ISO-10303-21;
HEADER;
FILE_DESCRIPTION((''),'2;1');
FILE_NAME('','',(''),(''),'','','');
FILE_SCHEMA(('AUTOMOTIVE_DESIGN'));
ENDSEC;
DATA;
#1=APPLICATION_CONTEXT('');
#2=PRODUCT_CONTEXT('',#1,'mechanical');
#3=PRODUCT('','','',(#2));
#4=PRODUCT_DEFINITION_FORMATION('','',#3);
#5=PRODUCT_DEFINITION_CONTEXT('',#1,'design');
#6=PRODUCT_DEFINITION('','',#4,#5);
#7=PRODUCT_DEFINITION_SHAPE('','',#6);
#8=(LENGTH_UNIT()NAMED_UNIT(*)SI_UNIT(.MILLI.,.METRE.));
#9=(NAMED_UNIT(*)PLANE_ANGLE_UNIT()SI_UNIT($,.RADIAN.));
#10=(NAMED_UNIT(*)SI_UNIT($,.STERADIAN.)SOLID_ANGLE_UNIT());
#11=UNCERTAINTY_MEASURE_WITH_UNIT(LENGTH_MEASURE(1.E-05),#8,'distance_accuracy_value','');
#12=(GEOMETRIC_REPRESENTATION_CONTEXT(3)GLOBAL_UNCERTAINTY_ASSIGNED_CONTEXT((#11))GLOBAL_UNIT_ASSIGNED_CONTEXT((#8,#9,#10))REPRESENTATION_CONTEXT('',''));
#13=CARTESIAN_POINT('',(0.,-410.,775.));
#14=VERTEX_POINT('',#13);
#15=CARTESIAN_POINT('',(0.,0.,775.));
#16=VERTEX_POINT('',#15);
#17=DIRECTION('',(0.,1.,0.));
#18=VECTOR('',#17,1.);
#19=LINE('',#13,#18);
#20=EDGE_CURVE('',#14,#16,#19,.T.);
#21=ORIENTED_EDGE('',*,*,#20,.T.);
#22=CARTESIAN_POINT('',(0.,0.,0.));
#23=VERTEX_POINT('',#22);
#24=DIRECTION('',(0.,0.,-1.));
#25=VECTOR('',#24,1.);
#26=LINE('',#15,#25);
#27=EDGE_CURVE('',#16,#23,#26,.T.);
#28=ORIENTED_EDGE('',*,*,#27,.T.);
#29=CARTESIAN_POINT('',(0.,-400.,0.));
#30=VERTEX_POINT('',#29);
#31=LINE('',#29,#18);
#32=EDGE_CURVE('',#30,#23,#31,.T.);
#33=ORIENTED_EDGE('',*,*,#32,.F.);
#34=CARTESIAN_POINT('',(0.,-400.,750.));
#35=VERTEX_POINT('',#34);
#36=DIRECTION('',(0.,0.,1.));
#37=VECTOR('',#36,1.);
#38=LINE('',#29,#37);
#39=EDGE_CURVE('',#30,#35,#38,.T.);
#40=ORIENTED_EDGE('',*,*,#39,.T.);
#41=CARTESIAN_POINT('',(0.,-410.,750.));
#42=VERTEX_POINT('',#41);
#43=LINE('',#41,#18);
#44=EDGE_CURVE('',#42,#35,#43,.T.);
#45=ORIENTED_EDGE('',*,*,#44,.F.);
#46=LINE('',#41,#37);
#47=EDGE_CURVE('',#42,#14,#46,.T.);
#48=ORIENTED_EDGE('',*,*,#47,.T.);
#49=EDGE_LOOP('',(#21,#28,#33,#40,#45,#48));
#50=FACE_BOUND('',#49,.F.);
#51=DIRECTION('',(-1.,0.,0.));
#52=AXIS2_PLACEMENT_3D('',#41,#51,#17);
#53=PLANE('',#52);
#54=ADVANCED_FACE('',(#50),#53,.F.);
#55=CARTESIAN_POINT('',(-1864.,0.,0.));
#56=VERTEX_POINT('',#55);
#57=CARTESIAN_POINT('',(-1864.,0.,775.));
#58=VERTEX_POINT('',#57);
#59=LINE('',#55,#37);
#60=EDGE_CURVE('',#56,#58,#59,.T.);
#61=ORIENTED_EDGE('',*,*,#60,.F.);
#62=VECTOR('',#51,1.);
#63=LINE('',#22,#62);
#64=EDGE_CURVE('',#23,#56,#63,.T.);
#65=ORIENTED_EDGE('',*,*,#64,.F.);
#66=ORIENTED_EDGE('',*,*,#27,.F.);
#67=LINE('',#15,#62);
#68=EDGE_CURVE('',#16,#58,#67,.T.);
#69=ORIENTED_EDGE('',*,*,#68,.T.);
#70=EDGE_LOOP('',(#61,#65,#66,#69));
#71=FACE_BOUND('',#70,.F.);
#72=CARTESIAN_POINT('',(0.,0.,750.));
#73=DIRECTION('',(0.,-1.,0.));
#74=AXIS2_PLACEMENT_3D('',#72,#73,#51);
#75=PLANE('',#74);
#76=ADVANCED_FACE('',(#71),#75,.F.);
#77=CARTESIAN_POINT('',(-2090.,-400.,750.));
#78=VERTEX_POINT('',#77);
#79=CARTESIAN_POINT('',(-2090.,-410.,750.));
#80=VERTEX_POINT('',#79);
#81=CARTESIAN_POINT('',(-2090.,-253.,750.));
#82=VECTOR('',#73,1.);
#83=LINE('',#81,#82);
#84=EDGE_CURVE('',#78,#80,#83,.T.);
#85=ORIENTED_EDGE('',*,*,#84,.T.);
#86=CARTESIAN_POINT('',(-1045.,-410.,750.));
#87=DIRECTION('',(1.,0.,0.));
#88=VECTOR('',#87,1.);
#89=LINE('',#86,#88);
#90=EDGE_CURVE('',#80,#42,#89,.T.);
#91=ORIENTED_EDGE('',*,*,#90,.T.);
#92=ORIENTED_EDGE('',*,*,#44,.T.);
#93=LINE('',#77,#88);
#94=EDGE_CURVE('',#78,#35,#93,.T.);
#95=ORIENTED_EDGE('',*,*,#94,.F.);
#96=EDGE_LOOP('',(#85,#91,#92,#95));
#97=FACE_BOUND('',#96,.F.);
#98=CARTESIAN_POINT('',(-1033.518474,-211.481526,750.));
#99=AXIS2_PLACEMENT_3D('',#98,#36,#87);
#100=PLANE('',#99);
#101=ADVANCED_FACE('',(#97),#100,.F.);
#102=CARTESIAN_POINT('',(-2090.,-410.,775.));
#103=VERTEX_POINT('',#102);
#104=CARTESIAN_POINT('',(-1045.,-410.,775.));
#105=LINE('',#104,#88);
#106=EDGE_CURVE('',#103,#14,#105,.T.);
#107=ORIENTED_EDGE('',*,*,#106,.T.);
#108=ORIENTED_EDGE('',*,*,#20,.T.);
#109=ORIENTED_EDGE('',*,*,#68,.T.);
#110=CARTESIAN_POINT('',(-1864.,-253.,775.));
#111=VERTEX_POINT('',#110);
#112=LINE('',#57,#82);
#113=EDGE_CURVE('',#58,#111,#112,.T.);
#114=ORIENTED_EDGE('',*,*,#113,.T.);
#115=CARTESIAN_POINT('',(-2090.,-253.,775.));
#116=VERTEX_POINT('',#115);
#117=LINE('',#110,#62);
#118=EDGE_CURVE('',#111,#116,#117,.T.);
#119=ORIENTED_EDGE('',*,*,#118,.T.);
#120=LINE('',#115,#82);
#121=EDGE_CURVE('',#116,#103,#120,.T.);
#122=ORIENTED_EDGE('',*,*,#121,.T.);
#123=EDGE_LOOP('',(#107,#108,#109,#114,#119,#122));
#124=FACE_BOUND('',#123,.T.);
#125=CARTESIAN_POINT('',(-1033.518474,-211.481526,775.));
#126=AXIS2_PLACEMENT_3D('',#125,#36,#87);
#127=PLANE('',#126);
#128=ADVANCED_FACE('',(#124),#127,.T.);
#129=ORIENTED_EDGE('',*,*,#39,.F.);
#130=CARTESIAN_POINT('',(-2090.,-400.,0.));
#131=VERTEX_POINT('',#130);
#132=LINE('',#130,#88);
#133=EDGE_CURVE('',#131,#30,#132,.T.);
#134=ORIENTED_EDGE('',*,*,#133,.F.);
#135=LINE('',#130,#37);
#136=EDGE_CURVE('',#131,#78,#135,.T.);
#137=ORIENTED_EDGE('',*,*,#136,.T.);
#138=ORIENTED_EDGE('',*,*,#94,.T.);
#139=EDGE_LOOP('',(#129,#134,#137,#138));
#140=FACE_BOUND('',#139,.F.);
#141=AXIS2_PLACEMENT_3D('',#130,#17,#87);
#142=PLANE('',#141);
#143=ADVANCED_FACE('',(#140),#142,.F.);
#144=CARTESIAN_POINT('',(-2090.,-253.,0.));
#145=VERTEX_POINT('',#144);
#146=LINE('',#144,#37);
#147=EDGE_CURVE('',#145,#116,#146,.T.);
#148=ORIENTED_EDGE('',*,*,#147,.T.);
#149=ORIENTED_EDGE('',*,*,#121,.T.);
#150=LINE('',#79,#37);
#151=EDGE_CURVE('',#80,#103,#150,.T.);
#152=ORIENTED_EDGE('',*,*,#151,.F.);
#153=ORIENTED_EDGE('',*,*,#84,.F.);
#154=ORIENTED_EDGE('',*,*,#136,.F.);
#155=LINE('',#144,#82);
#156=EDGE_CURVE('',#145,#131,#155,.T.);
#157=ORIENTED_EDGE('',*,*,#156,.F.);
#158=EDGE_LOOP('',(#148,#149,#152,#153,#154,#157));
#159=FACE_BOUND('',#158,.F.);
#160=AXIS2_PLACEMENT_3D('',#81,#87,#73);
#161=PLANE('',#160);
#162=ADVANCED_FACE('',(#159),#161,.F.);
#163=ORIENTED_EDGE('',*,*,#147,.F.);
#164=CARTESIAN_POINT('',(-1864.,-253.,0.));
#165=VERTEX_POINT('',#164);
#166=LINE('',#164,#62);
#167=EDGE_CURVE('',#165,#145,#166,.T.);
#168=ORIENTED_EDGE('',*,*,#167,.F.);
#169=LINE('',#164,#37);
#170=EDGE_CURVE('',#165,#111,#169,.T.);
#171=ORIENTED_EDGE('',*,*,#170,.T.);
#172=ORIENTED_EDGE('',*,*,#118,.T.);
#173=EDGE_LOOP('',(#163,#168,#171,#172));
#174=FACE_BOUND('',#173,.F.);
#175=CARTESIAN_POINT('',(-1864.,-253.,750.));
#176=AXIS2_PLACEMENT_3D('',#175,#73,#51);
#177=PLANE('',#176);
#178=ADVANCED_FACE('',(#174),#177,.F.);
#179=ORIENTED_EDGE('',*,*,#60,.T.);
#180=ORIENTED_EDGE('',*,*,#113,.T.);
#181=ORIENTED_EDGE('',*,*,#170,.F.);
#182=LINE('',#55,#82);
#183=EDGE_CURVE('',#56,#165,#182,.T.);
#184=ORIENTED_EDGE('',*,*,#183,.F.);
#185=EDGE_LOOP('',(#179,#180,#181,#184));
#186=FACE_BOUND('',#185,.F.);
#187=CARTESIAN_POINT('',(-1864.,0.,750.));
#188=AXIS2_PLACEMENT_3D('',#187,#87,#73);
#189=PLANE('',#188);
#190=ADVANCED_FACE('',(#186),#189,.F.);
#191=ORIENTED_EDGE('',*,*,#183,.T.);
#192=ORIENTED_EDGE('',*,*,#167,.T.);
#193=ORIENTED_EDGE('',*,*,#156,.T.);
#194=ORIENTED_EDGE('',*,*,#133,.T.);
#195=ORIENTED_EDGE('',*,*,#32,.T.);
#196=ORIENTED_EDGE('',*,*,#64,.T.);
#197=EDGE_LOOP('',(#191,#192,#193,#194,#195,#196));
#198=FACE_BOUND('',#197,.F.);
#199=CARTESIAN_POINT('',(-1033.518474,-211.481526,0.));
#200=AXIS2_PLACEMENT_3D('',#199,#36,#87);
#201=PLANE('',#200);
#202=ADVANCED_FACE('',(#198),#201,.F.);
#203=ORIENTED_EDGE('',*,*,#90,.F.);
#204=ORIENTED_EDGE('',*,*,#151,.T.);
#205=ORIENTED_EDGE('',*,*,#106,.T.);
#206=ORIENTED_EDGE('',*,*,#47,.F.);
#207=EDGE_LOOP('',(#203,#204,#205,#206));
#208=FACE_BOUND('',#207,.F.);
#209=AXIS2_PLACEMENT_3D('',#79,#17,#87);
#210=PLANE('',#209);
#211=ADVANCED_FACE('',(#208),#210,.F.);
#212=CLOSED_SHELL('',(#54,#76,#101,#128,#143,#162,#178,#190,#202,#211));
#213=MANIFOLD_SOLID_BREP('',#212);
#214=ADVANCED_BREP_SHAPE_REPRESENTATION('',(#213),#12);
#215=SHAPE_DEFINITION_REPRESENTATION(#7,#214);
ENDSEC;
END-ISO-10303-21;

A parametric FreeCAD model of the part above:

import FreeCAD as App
import Part
import Sketcher


def add_polygon(sketch, points):
    """Adds a closed chain of lines whose ends are joined by coincident constraints."""
    first, n = sketch.GeometryCount, len(points)
    for a, b in zip(points, points[1:] + points[:1]):
        sketch.addGeometry(Part.LineSegment(App.Vector(*a, 0), App.Vector(*b, 0)), False)
    for i in range(n):
        sketch.addConstraint(Sketcher.Constraint("Coincident", first + i, 2, first + (i + 1) % n, 1))

doc = App.newDocument("Part")
body = doc.addObject("PartDesign::Body", "Body")

sketch1 = doc.addObject("Sketcher::SketchObject", "Sketch")
body.addObject(sketch1)
sketch1.AttachmentSupport = (doc.XY_Plane, [""])
sketch1.MapMode = "FlatFace"
add_polygon(sketch1, [(0, -400), (0, 0), (-1864, 0), (-1864, -253), (-2090, -253), (-2090, -400)])
sketch1.addConstraint([
    Sketcher.Constraint("Vertical", 0),
    Sketcher.Constraint("Horizontal", 1),
    Sketcher.Constraint("Vertical", 2),
    Sketcher.Constraint("Horizontal", 3),
    Sketcher.Constraint("Vertical", 4),
    Sketcher.Constraint("Horizontal", 5),
    Sketcher.Constraint("Coincident", 0, 2, -1, 1),
    Sketcher.Constraint("DistanceX", 1, 2, 1, 1, 1864.0),
    Sketcher.Constraint("DistanceX", 3, 2, 3, 1, 226.0),
    Sketcher.Constraint("DistanceY", 0, 1, 0, 2, 400.0),
    Sketcher.Constraint("DistanceY", 2, 2, 2, 1, 253.0),
])
pad1 = doc.addObject("PartDesign::Pad", "Pad")
body.addObject(pad1)
pad1.Profile = sketch1
pad1.Length = 750

sketch2 = doc.addObject("Sketcher::SketchObject", "Sketch001")
body.addObject(sketch2)
sketch2.AttachmentSupport = (doc.XY_Plane, [""])
sketch2.MapMode = "FlatFace"
sketch2.AttachmentOffset = App.Placement(App.Vector(0, 0, 750), App.Rotation())
add_polygon(sketch2, [(0, 0), (-1864, 0), (-1864, -253), (-2090, -253), (-2090, -410), (0, -410)])
sketch2.addConstraint([
    Sketcher.Constraint("Horizontal", 0),
    Sketcher.Constraint("Vertical", 1),
    Sketcher.Constraint("Horizontal", 2),
    Sketcher.Constraint("Vertical", 3),
    Sketcher.Constraint("Horizontal", 4),
    Sketcher.Constraint("Vertical", 5),
    Sketcher.Constraint("Coincident", 5, 2, -1, 1),
    Sketcher.Constraint("DistanceX", 0, 2, 0, 1, 1864.0),
    Sketcher.Constraint("DistanceX", 2, 2, 2, 1, 226.0),
    Sketcher.Constraint("DistanceY", 1, 2, 1, 1, 253.0),
    Sketcher.Constraint("DistanceY", 3, 2, 3, 1, 157.0),
])
pad2 = doc.addObject("PartDesign::Pad", "Pad001")
body.addObject(pad2)
pad2.Profile = sketch2
pad2.Length = 25

doc.recompute()
